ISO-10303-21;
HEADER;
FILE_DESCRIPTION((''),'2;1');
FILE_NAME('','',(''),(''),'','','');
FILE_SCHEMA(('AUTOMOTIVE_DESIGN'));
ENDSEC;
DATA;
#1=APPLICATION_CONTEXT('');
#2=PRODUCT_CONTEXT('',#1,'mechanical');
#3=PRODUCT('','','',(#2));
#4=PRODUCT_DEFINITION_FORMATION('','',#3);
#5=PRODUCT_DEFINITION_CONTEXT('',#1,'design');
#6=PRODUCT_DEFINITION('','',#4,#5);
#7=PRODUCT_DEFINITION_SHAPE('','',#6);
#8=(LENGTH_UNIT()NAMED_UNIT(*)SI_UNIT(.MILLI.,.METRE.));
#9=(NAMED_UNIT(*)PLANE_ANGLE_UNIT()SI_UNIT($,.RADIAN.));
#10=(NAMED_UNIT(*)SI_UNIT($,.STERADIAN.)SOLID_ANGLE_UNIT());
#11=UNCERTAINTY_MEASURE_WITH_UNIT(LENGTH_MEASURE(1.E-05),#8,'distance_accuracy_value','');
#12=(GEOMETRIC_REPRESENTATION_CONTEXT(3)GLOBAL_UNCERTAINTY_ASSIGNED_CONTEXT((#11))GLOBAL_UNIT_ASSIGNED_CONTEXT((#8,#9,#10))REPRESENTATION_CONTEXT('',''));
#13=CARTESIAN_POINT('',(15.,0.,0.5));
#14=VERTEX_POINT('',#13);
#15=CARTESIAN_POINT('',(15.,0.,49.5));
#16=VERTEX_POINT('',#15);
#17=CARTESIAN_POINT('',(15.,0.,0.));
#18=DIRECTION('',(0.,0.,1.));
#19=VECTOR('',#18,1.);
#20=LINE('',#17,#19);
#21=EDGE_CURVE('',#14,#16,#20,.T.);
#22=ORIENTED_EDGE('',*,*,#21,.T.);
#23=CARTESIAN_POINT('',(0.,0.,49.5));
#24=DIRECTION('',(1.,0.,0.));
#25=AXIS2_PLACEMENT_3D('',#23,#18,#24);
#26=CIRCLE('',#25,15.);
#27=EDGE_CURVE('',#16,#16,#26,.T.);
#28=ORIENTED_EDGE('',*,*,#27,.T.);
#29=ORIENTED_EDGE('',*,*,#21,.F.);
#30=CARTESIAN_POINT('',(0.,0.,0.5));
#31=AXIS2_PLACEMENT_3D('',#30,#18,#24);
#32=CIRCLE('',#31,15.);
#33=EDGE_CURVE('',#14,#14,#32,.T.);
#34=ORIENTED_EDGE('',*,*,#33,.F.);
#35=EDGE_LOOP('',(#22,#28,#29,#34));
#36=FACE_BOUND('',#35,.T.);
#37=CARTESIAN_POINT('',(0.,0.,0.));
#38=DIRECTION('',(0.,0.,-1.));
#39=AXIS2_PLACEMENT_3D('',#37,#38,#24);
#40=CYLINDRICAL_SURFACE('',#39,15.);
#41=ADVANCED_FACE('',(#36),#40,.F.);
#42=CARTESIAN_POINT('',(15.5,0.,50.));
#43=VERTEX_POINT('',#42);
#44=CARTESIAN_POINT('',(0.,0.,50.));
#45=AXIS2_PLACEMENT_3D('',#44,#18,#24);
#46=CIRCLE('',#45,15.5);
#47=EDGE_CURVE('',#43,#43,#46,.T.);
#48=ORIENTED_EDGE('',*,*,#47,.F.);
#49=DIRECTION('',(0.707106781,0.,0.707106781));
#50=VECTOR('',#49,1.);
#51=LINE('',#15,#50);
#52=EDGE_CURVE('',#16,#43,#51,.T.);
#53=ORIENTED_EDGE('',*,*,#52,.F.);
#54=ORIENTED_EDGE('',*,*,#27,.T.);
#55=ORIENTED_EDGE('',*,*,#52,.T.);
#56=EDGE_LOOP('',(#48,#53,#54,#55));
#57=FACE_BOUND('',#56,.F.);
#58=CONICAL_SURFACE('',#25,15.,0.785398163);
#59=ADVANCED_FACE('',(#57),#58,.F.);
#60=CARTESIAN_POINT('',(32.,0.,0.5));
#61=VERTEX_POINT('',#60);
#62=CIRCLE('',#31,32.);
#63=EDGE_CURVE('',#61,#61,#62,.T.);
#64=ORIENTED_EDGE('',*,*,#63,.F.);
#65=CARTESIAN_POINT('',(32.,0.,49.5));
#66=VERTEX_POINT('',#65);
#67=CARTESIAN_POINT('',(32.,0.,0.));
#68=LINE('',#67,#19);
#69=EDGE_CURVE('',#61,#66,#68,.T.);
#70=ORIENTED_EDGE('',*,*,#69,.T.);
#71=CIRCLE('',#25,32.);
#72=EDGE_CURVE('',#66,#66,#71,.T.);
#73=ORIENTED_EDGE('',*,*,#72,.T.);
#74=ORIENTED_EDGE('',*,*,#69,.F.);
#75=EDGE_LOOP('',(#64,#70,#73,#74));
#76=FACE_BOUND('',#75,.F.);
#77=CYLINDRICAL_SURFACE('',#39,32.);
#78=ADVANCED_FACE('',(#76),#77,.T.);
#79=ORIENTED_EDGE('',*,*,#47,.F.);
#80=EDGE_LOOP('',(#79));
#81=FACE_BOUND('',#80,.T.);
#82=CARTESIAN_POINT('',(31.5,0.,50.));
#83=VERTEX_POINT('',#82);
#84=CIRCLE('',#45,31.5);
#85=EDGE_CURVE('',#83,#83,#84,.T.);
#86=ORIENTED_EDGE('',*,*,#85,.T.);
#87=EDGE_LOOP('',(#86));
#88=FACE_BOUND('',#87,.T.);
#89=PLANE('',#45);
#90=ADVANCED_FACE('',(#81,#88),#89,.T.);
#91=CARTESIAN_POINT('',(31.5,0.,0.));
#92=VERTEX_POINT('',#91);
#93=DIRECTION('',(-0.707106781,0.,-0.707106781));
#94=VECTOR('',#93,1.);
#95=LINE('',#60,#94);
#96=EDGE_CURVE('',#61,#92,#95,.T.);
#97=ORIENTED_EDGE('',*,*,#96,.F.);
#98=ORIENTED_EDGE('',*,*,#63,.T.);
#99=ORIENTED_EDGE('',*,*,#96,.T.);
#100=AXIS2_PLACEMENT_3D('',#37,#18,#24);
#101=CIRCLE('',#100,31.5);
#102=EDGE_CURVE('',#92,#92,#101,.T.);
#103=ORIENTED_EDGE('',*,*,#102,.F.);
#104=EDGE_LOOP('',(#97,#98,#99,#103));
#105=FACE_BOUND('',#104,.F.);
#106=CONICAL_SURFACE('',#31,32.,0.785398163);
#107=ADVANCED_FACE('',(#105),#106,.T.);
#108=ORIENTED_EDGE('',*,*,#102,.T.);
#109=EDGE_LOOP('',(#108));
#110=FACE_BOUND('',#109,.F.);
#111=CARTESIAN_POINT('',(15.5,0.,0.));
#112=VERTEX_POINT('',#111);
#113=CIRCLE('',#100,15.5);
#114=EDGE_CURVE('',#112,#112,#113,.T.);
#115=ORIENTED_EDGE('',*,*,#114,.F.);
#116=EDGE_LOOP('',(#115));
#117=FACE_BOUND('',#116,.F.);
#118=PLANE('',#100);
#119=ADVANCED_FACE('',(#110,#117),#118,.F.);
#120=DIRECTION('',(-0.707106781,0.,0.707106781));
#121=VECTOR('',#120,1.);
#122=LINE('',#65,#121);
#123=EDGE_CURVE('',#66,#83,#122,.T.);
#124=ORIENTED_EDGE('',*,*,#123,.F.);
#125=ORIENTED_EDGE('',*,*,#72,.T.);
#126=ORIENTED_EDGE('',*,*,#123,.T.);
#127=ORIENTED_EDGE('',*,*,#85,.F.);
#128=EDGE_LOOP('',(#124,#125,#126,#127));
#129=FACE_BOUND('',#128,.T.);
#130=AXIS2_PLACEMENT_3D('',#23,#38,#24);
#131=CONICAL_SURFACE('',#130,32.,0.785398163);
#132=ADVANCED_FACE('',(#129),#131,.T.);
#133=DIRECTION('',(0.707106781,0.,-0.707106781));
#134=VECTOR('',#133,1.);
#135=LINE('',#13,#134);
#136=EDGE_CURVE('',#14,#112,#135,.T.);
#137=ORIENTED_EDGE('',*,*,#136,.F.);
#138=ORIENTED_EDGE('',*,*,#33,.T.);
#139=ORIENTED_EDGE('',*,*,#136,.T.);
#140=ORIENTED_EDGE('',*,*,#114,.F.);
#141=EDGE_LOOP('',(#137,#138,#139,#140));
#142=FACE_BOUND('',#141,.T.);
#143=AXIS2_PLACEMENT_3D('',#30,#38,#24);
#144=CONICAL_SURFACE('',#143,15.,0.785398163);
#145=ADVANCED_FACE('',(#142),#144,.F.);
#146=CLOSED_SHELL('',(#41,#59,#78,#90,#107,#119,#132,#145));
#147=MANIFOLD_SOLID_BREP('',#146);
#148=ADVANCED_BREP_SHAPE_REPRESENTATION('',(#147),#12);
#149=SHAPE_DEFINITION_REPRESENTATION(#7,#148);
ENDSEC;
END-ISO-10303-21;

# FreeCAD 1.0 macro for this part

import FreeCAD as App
import Part
import Sketcher
Q = App.Units.Quantity


def edges_at(feature, points):
    """Names of the edges that pass closest to the given points."""
    edges = feature.Shape.Edges
    near = lambda p: min(range(len(edges)), key=lambda i: edges[i].distToShape(Part.Vertex(*p))[0])
    return sorted({f"Edge{near(p) + 1}" for p in points})

doc = App.newDocument("Part")
body = doc.addObject("PartDesign::Body", "Body")

sketch1 = body.newObject("Sketcher::SketchObject", "Sketch")
sketch1.AttachmentSupport = (doc.getObject("XY_Plane"), [""])
sketch1.MapMode = "FlatFace"
sketch1.addGeometry([
    Part.Circle(App.Vector(0, 0, 0), App.Vector(0, 0, 1), 32),
    Part.Circle(App.Vector(0, 0, 0), App.Vector(0, 0, 1), 15),
], False)
sketch1.addConstraint([
    Sketcher.Constraint("Coincident", 0, 3, -1, 1),
    Sketcher.Constraint("Coincident", 1, 3, -1, 1),
    Sketcher.Constraint("Diameter", 0, Q("64 mm")),
    Sketcher.Constraint("Diameter", 1, Q("30 mm")),
])
pad1 = body.newObject("PartDesign::Pad", "Pad")
pad1.Profile = sketch1
pad1.Length = 50
doc.recompute()

chamfer = body.newObject("PartDesign::Chamfer", "Chamfer")
chamfer.Base = (pad1, edges_at(pad1, [
    (-15, 0, 50),
    (-15, 0, 0),
    (-32, 0, 50),
    (-32, 0, 0),
]))
chamfer.Size = 0.5

doc.recompute()
